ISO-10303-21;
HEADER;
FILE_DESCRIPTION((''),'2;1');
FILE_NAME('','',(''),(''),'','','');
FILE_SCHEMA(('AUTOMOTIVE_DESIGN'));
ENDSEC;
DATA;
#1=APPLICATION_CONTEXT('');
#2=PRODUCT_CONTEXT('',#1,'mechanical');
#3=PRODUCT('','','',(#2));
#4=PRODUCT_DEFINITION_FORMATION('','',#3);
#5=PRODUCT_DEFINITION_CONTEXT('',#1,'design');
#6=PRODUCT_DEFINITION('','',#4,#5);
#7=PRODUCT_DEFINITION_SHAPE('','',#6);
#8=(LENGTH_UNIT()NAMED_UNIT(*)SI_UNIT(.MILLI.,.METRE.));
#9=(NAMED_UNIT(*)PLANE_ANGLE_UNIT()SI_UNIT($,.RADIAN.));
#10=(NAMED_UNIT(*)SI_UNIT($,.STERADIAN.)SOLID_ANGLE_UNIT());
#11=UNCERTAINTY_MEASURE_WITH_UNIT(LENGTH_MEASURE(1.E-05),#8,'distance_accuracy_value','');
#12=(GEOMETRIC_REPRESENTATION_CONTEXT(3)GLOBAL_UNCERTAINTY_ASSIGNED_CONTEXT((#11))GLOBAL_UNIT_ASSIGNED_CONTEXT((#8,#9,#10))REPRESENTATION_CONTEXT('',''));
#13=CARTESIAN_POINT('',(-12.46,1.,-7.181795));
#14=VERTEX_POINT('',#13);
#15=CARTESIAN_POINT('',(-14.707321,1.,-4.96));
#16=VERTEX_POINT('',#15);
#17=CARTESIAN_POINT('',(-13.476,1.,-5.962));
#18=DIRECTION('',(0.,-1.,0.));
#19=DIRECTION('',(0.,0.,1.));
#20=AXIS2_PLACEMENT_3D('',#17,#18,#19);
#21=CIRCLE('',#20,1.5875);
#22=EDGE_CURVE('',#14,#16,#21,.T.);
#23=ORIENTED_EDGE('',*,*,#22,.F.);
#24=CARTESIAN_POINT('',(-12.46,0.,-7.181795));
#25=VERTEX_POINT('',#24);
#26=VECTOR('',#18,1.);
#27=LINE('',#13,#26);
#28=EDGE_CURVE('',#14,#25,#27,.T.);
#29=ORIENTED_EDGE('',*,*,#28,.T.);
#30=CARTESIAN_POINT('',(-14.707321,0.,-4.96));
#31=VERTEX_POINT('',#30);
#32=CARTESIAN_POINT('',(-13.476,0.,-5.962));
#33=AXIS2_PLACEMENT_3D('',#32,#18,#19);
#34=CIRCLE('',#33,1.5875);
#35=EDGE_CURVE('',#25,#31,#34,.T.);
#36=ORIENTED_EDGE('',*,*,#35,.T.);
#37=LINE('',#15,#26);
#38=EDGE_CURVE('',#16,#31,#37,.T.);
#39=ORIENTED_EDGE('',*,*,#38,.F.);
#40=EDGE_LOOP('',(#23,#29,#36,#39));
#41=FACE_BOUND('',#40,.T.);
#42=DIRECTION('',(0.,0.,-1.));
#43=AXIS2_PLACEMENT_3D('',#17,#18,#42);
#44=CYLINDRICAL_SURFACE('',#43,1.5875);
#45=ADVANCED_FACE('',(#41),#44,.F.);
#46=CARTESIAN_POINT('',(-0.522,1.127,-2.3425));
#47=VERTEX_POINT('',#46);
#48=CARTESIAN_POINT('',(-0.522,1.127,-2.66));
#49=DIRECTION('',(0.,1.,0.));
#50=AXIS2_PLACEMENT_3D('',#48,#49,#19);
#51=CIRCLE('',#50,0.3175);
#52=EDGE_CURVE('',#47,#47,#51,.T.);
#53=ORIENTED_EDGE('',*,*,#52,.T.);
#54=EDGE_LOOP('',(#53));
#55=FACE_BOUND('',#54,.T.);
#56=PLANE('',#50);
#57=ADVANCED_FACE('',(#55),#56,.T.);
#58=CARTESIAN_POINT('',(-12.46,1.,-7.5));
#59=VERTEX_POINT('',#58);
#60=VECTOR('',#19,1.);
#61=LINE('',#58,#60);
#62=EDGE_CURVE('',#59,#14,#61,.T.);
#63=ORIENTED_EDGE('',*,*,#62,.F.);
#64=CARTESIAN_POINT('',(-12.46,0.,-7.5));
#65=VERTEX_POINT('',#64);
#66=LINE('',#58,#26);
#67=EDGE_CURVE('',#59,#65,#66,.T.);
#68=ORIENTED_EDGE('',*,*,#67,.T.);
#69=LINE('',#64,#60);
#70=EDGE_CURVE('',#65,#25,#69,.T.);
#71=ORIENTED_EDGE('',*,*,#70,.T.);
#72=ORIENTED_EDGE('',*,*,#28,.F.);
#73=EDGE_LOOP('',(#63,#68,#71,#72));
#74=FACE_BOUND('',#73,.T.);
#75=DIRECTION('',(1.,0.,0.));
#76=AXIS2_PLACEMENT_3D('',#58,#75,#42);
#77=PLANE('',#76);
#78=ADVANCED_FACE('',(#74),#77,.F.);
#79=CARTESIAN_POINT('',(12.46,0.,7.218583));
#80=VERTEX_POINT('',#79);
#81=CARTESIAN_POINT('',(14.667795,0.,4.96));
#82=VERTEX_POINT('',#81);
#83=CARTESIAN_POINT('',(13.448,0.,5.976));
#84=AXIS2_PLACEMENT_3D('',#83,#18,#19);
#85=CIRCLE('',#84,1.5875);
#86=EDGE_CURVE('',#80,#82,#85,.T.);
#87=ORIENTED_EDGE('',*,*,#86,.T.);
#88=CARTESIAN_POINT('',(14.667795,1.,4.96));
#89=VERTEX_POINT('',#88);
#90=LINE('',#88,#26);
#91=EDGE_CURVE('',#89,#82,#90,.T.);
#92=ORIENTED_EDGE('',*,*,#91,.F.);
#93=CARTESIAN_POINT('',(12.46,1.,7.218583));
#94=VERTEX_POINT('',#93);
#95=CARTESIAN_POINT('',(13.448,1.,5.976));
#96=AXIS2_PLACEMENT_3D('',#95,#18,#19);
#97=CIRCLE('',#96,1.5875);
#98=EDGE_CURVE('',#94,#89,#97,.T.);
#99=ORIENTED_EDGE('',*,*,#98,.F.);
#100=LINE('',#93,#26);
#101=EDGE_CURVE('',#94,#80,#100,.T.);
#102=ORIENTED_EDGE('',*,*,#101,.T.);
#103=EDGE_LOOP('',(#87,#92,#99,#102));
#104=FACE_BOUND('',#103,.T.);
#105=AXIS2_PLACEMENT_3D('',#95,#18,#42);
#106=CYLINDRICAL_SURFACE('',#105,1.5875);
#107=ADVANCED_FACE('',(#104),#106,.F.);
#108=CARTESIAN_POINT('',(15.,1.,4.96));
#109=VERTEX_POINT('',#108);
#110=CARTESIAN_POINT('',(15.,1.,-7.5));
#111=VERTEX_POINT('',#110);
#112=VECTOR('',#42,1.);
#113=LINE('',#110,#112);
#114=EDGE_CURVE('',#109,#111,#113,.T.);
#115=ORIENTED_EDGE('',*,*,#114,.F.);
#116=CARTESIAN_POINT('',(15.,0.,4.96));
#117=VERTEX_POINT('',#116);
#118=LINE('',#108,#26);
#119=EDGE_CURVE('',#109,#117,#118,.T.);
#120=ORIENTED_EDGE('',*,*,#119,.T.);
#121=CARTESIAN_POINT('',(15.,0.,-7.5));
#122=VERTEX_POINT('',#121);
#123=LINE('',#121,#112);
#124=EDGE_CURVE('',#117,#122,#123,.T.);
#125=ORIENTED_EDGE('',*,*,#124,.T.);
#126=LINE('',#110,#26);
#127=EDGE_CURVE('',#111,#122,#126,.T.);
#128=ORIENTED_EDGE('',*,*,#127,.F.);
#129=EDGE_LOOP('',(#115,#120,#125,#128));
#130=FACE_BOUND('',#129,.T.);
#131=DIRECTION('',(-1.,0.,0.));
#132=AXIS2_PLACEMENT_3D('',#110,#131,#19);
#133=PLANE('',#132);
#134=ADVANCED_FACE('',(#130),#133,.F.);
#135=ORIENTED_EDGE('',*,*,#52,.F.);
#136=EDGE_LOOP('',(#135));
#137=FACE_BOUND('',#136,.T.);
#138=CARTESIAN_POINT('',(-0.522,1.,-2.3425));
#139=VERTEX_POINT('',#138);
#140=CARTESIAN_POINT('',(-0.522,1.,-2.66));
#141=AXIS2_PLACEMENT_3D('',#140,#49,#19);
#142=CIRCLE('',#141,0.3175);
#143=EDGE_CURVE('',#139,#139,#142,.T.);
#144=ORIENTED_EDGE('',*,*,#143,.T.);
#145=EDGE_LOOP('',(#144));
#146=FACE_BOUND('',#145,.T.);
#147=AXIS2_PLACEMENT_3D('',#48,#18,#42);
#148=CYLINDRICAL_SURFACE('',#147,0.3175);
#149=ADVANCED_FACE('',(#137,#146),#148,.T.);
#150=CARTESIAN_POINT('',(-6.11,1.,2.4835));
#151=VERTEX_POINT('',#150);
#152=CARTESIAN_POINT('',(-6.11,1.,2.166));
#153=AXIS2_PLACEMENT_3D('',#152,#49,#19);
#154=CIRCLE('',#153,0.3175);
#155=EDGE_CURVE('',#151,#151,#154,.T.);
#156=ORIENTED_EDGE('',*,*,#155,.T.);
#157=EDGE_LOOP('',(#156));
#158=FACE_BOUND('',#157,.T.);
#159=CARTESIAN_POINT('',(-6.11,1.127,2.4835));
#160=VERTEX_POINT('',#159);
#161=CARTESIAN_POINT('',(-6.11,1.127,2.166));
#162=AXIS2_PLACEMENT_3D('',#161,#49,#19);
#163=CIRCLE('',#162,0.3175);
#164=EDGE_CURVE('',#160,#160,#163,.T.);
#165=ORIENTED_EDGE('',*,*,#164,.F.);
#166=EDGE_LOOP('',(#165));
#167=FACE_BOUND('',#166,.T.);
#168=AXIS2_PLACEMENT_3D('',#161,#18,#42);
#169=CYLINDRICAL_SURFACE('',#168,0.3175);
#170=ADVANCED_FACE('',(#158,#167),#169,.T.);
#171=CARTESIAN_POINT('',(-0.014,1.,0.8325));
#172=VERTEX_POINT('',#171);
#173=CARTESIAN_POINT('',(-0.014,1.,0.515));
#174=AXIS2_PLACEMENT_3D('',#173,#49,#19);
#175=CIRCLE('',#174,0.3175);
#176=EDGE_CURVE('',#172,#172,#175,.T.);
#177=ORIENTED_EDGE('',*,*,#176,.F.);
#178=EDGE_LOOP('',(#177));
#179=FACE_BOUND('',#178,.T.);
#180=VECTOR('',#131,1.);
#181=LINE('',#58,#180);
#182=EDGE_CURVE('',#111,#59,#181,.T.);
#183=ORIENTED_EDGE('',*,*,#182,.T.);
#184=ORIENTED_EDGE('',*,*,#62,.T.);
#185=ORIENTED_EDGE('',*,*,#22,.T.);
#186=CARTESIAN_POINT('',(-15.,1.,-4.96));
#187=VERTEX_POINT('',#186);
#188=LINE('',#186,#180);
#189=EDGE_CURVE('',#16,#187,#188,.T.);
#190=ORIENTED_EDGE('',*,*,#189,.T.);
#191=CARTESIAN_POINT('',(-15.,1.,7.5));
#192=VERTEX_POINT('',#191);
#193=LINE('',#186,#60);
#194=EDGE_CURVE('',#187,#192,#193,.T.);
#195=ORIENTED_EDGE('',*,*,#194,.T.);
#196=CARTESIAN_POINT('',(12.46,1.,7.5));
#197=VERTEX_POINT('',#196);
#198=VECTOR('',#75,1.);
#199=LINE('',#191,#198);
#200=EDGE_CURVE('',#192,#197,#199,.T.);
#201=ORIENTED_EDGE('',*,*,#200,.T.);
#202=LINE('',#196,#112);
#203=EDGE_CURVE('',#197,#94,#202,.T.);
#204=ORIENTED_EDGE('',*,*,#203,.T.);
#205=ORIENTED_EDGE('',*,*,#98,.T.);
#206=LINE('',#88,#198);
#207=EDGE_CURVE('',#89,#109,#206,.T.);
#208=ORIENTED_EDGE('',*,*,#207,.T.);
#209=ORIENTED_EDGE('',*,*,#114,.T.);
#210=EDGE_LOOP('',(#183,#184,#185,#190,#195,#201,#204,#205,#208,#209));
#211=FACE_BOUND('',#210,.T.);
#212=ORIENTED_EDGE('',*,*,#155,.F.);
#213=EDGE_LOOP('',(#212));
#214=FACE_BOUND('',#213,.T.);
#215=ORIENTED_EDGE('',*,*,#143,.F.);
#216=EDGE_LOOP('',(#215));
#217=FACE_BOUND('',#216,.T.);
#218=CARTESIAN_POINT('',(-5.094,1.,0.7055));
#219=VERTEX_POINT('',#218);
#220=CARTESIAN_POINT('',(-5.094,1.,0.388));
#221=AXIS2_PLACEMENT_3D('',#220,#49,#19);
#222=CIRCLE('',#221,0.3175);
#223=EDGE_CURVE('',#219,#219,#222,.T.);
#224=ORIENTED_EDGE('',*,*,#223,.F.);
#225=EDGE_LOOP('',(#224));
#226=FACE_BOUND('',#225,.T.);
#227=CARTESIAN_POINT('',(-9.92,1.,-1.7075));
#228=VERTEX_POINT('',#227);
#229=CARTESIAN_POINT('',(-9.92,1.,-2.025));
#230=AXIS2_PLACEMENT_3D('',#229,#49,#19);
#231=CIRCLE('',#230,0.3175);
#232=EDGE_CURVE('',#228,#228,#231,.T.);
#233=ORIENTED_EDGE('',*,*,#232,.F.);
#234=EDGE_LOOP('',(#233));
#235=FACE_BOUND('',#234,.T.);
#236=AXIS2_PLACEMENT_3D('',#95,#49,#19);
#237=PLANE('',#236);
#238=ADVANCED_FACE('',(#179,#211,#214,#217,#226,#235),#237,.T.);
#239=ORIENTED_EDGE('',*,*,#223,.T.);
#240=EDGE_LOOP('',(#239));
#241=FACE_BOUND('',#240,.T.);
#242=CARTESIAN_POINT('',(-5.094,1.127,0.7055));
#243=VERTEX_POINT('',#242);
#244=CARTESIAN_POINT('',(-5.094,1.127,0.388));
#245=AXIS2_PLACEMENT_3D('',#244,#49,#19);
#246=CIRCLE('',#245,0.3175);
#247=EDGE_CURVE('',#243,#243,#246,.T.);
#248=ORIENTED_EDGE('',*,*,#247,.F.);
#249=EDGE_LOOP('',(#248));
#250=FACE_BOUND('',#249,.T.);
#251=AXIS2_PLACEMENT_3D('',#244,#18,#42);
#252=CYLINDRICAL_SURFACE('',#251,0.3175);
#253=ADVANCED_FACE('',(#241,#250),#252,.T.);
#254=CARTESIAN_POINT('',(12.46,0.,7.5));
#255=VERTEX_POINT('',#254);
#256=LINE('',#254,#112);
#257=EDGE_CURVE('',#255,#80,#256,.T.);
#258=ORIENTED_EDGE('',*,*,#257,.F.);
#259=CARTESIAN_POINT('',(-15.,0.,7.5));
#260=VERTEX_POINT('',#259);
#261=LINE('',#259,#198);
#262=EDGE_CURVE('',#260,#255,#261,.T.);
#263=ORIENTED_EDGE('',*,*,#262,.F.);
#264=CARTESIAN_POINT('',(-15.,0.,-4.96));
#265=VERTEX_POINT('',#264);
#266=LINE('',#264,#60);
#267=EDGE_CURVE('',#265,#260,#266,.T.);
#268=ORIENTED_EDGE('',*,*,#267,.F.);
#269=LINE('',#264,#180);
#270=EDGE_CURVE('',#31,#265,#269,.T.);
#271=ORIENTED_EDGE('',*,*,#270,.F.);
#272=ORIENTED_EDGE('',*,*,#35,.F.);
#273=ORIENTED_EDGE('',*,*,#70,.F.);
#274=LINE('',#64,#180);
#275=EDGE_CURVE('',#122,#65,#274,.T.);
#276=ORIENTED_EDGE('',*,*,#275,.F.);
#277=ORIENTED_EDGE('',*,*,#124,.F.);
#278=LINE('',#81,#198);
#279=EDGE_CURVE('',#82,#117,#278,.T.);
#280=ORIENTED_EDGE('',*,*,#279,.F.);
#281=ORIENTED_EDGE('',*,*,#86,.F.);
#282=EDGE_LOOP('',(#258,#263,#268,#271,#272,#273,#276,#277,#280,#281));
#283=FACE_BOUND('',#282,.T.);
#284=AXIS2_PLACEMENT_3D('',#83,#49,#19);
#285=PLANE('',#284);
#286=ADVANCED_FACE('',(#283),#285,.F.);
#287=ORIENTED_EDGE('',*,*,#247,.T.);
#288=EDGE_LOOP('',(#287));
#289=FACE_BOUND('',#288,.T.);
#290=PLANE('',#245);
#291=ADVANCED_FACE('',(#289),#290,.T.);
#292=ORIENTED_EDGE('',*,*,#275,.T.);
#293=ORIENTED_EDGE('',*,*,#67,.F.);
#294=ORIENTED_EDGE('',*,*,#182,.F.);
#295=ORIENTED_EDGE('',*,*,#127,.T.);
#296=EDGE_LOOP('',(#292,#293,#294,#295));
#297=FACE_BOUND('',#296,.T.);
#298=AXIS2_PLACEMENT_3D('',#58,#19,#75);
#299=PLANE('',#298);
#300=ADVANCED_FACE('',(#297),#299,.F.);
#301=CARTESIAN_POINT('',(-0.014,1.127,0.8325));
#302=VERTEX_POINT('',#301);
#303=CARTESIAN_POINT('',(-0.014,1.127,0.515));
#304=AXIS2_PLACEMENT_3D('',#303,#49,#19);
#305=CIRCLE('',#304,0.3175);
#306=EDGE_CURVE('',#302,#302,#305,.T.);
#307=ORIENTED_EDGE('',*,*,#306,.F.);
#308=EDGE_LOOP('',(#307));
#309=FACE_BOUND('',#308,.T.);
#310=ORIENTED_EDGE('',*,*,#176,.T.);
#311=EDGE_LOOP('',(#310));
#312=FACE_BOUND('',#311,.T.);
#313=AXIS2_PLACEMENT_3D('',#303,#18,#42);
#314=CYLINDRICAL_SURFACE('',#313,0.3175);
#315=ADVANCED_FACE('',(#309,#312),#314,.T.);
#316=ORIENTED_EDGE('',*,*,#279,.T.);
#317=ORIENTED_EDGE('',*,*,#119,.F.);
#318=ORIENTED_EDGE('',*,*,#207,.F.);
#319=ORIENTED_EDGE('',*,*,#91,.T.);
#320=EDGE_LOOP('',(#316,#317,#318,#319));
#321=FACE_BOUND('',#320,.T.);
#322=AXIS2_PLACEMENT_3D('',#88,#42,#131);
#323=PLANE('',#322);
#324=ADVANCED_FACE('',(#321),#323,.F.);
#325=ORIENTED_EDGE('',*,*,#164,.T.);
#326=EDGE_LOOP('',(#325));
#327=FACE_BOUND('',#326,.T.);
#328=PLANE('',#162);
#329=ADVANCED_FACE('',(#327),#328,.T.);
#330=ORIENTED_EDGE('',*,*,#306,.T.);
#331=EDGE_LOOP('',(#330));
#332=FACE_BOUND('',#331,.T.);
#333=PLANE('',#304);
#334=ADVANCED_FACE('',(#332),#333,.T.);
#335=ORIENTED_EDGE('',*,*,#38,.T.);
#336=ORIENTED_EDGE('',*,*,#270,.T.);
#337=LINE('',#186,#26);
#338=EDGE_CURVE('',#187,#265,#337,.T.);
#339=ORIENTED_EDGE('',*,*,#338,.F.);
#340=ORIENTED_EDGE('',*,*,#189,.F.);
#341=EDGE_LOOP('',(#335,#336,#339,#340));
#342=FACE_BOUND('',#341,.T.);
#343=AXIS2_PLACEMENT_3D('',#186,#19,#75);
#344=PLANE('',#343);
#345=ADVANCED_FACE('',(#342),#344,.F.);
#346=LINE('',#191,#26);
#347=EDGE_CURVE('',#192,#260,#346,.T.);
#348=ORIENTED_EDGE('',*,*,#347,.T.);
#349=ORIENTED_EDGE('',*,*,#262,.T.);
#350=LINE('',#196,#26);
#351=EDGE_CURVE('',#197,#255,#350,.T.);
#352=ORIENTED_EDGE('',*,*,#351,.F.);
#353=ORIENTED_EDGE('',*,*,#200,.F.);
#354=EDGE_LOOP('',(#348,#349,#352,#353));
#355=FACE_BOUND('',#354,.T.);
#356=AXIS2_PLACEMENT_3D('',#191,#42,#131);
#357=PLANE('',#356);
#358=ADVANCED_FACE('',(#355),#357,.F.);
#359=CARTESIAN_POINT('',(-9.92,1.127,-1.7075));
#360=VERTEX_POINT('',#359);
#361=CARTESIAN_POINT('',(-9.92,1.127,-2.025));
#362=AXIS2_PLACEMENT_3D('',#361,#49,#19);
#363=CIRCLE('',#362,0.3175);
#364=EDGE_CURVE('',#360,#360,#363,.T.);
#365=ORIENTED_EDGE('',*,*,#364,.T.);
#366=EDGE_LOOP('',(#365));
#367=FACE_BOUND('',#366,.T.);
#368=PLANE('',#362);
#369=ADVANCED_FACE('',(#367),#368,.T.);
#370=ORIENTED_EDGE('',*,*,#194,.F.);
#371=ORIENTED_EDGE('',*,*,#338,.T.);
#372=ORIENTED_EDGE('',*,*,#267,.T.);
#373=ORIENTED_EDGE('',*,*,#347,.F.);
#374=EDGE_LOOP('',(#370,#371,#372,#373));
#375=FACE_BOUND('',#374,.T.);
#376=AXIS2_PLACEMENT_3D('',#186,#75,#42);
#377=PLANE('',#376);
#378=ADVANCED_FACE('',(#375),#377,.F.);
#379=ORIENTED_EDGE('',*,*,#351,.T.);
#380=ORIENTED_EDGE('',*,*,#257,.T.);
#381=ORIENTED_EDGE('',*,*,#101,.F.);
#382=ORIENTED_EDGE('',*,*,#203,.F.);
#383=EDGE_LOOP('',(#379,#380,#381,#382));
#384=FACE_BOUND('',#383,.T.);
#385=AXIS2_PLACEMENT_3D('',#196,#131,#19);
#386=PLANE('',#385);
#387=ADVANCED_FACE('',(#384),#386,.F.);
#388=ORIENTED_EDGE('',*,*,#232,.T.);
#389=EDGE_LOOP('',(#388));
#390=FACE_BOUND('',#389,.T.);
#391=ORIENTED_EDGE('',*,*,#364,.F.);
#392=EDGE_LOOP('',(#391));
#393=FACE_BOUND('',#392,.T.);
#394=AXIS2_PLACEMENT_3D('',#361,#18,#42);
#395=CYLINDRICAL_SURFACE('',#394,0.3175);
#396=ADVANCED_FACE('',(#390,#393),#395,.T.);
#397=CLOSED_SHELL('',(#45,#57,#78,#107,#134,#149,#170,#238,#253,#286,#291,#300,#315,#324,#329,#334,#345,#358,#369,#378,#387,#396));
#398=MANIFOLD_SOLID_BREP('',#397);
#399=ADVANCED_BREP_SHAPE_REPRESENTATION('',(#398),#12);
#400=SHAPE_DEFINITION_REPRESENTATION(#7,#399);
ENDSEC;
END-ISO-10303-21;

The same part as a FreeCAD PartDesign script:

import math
import FreeCAD as App
import Part
import Sketcher

V = App.Vector
Q = App.Units.Quantity

doc = App.newDocument("Part")
params = doc.addObject("Spreadsheet::Sheet", "Params")
for row, (alias, value) in enumerate([
    ("sketch1_radius", "0.0625 in"),
    ("pad1_length", "1 mm"),
    ("sketch2_diameter", "0.025 in"),
    ("pad2_length", "0.005 in"),
], start=1):
    params.set(f"A{row}", alias)
    params.set(f"B{row}", "=" + value)
    params.setAlias(f"B{row}", alias)

body = doc.addObject("PartDesign::Body", "Body")

# Sketch on XZ plane
sketch1 = body.newObject("Sketcher::SketchObject", "Sketch")
sketch1.AttachmentSupport = (doc.getObject("XZ_Plane"), [""])
sketch1.MapMode = "FlatFace"
sketch1.addGeometry(Part.LineSegment(V(15, -7.5, 0), V(-12.46, -7.5, 0)), False)
sketch1.addGeometry(Part.LineSegment(V(-12.46, -7.5, 0), V(-12.46, -7.18, 0)), False)
sketch1.addGeometry(Part.ArcOfCircle(Part.Circle(V(-13.48, -5.96, 0), V(0, 0, 1), 1.59), math.radians(-50), math.radians(141)), False)
sketch1.addGeometry(Part.LineSegment(V(-14.71, -4.96, 0), V(-15, -4.96, 0)), False)
sketch1.addGeometry(Part.LineSegment(V(-15, -4.96, 0), V(-15, 7.5, 0)), False)
sketch1.addGeometry(Part.LineSegment(V(-15, 7.5, 0), V(12.46, 7.5, 0)), False)
sketch1.addGeometry(Part.LineSegment(V(12.46, 7.5, 0), V(12.46, 7.22, 0)), False)
sketch1.addGeometry(Part.ArcOfCircle(Part.Circle(V(13.45, 5.98, 0), V(0, 0, 1), 1.59), math.radians(128), math.radians(320)), False)
sketch1.addGeometry(Part.LineSegment(V(14.67, 4.96, 0), V(15, 4.96, 0)), False)
sketch1.addGeometry(Part.LineSegment(V(15, 4.96, 0), V(15, -7.5, 0)), False)
sketch1.addConstraint(Sketcher.Constraint("Coincident", 0, 2, 1, 1))
sketch1.addConstraint(Sketcher.Constraint("Coincident", 1, 2, 2, 1))
sketch1.addConstraint(Sketcher.Constraint("Coincident", 2, 2, 3, 1))
sketch1.addConstraint(Sketcher.Constraint("Coincident", 3, 2, 4, 1))
sketch1.addConstraint(Sketcher.Constraint("Coincident", 4, 2, 5, 1))
sketch1.addConstraint(Sketcher.Constraint("Coincident", 5, 2, 6, 1))
sketch1.addConstraint(Sketcher.Constraint("Coincident", 6, 2, 7, 1))
sketch1.addConstraint(Sketcher.Constraint("Coincident", 7, 2, 8, 1))
sketch1.addConstraint(Sketcher.Constraint("Coincident", 8, 2, 9, 1))
sketch1.addConstraint(Sketcher.Constraint("Coincident", 9, 2, 0, 1))
sketch1.addConstraint(Sketcher.Constraint("Horizontal", 0))
sketch1.addConstraint(Sketcher.Constraint("Vertical", 1))
sketch1.addConstraint(Sketcher.Constraint("Horizontal", 3))
sketch1.addConstraint(Sketcher.Constraint("Vertical", 4))
sketch1.addConstraint(Sketcher.Constraint("Horizontal", 5))
sketch1.addConstraint(Sketcher.Constraint("Vertical", 6))
sketch1.addConstraint(Sketcher.Constraint("Horizontal", 8))
sketch1.addConstraint(Sketcher.Constraint("Vertical", 9))
sketch1.addConstraint(Sketcher.Constraint("Equal", 2, 7))
sketch1.addConstraint(Sketcher.Constraint("Symmetric", 0, 2, 5, 2, -1, 1))
sketch1.addConstraint(Sketcher.Constraint("Symmetric", 3, 2, 8, 2, -1, 1))
sketch1.addConstraint(Sketcher.Constraint("Radius", 2, Q("0.0625 in")))
sketch1.addConstraint(Sketcher.Constraint("DistanceY", 0, 2, 2, 2, Q("0.1 in")))
sketch1.addConstraint(Sketcher.Constraint("DistanceX", 3, 2, 1, 2, Q("0.1 in")))
sketch1.addConstraint(Sketcher.Constraint("DistanceX", 2, 3, 7, 3, Q("1.06 in")))
sketch1.addConstraint(Sketcher.Constraint("DistanceY", 2, 3, 7, 3, Q("0.47 in")))
sketch1.addConstraint(Sketcher.Constraint("DistanceX", 2, 3, 0, 2, Q("0.04 in")))
sketch1.addConstraint(Sketcher.Constraint("DistanceY", 2, 3, 4, 2, Q("0.53 in")))
sketch1.addConstraint(Sketcher.Constraint("DistanceX", 0, 2, 0, 1, Q("27.46 mm")))
sketch1.addConstraint(Sketcher.Constraint("DistanceY", 4, 1, 4, 2, Q("12.46 mm")))
sketch1.setExpression("Constraints[21]", "Params.sketch1_radius")
pad1 = body.newObject("PartDesign::Pad", "Pad")
pad1.Profile = sketch1
pad1.setExpression("Length", "Params.pad1_length")
pad1.Reversed = True

# Sketch on XZ plane
sketch2 = body.newObject("Sketcher::SketchObject", "Sketch001")
sketch2.AttachmentSupport = (doc.getObject("XZ_Plane"), [""])
sketch2.MapMode = "FlatFace"
sketch2.AttachmentOffset = App.Placement(V(0, 0, -1), App.Rotation())
sketch2.addGeometry(Part.Circle(V(-9.92, -2.02, 0), V(0, 0, 1), 0.32), False)
sketch2.addGeometry(Part.Circle(V(-5.09, 0.39, 0), V(0, 0, 1), 0.32), False)
sketch2.addGeometry(Part.Circle(V(-6.11, 2.17, 0), V(0, 0, 1), 0.32), False)
sketch2.addGeometry(Part.Circle(V(-0.52, -2.66, 0), V(0, 0, 1), 0.32), False)
sketch2.addGeometry(Part.Circle(V(-0.01, 0.52, 0), V(0, 0, 1), 0.32), False)
sketch2.addConstraint(Sketcher.Constraint("Equal", 0, 1))
sketch2.addConstraint(Sketcher.Constraint("Equal", 1, 2))
sketch2.addConstraint(Sketcher.Constraint("Equal", 2, 3))
sketch2.addConstraint(Sketcher.Constraint("Equal", 3, 4))
sketch2.addConstraint(Sketcher.Constraint("Diameter", 0, Q("0.025 in")))
sketch2.addConstraint(Sketcher.Constraint("DistanceX", 1, 3, 4, 3, Q("0.2 in")))
sketch2.addConstraint(Sketcher.Constraint("DistanceY", 0, 3, 4, 3, Q("0.1 in")))
sketch2.addConstraint(Sketcher.Constraint("DistanceX", 0, 3, 1, 3, Q("0.19 in")))
sketch2.addConstraint(Sketcher.Constraint("DistanceX", 2, 3, 1, 3, Q("0.04 in")))
sketch2.addConstraint(Sketcher.Constraint("DistanceY", 1, 3, 2, 3, Q("0.07 in")))
sketch2.addConstraint(Sketcher.Constraint("DistanceX", 1, 3, 3, 3, Q("0.18 in")))
sketch2.addConstraint(Sketcher.Constraint("DistanceY", 3, 3, 1, 3, Q("0.12 in")))
sketch2.addConstraint(Sketcher.Constraint("DistanceY", 0, 3, 1, 3, Q("0.095 in")))
sketch2.addConstraint(Sketcher.Constraint("DistanceX", 0, 3, -1, 1, Q("9.92 mm")))
sketch2.addConstraint(Sketcher.Constraint("DistanceY", 0, 3, -1, 1, Q("2.025 mm")))
sketch2.setExpression("Constraints[4]", "Params.sketch2_diameter")
pad2 = body.newObject("PartDesign::Pad", "Pad001")
pad2.Profile = sketch2
pad2.setExpression("Length", "Params.pad2_length")
pad2.Reversed = True

doc.recompute()
